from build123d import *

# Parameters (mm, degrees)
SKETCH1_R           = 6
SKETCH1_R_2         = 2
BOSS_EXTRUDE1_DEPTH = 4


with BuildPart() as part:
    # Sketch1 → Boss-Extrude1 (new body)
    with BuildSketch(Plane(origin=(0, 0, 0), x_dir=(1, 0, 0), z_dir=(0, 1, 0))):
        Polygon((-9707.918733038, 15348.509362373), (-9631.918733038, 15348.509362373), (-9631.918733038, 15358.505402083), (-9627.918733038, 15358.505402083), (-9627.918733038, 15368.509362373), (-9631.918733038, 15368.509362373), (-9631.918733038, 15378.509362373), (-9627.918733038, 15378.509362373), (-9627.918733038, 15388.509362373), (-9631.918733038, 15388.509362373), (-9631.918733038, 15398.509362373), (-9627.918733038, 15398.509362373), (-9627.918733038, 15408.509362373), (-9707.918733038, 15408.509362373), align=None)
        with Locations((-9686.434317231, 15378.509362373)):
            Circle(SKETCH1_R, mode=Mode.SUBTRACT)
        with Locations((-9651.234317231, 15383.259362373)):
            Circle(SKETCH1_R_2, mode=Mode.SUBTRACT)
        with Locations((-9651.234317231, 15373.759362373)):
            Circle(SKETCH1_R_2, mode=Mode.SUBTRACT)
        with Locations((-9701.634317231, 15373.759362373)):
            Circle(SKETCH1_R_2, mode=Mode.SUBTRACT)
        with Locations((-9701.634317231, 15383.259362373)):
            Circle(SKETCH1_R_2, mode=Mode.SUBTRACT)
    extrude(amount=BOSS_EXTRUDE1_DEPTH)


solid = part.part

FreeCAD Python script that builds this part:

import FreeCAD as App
import Part
import Sketcher
Q = App.Units.Quantity


def add_polygon(sketch, points):
    """Adds a closed chain of lines whose ends are joined by coincident constraints."""
    first, n = sketch.GeometryCount, len(points)
    for a, b in zip(points, points[1:] + points[:1]):
        sketch.addGeometry(Part.LineSegment(App.Vector(*a, 0), App.Vector(*b, 0)), False)
    for i in range(n):
        sketch.addConstraint(Sketcher.Constraint("Coincident", first + i, 2, first + (i + 1) % n, 1))

doc = App.newDocument("Part")
body = doc.addObject("PartDesign::Body", "Body")

# Sketch on XZ plane
sketch1 = body.newObject("Sketcher::SketchObject", "Sketch")
sketch1.AttachmentSupport = (doc.getObject("XZ_Plane"), [""])
sketch1.MapMode = "FlatFace"
add_polygon(sketch1, [(-9707.918733, -15348.509362), (-9631.918733, -15348.509362), (-9631.918733, -15358.505402), (-9627.918733, -15358.505402), (-9627.918733, -15368.509362), (-9631.918733, -15368.509362), (-9631.918733, -15378.509362), (-9627.918733, -15378.509362), (-9627.918733, -15388.509362), (-9631.918733, -15388.509362), (-9631.918733, -15398.509362), (-9627.918733, -15398.509362), (-9627.918733, -15408.509362), (-9707.918733, -15408.509362)])  # lines 0-13
sketch1.addGeometry(Part.Circle(App.Vector(-9701.634317, -15373.759362, 0), App.Vector(0, 0, 1), 2), False)  # 14
sketch1.addGeometry(Part.Circle(App.Vector(-9651.234317, -15373.759362, 0), App.Vector(0, 0, 1), 2), False)  # 15
sketch1.addGeometry(Part.Circle(App.Vector(-9686.434317, -15378.509362, 0), App.Vector(0, 0, 1), 6), False)  # 16
sketch1.addGeometry(Part.Circle(App.Vector(-9701.634317, -15383.259362, 0), App.Vector(0, 0, 1), 2), False)  # 17
sketch1.addGeometry(Part.Circle(App.Vector(-9651.234317, -15383.259362, 0), App.Vector(0, 0, 1), 2), False)  # 18
sketch1.addConstraint([
    Sketcher.Constraint("Horizontal", 0),
    Sketcher.Constraint("Vertical", 1),
    Sketcher.Constraint("Horizontal", 2),
    Sketcher.Constraint("Vertical", 3),
    Sketcher.Constraint("Horizontal", 4),
    Sketcher.Constraint("Vertical", 5),
    Sketcher.Constraint("Horizontal", 6),
    Sketcher.Constraint("Vertical", 7),
    Sketcher.Constraint("Horizontal", 8),
    Sketcher.Constraint("Vertical", 9),
    Sketcher.Constraint("Horizontal", 10),
    Sketcher.Constraint("Vertical", 11),
    Sketcher.Constraint("Horizontal", 12),
    Sketcher.Constraint("Vertical", 13),
    Sketcher.Constraint("Equal", 14, 15),
    Sketcher.Constraint("Equal", 15, 17),
    Sketcher.Constraint("Equal", 17, 18),
    Sketcher.Constraint("Horizontal", 14, 3, 15, 3),
    Sketcher.Constraint("Horizontal", 17, 3, 18, 3),
    Sketcher.Constraint("Horizontal", 16, 3, 5, 2),
    Sketcher.Constraint("Vertical", 14, 3, 17, 3),
    Sketcher.Constraint("Vertical", 15, 3, 18, 3),
    Sketcher.Constraint("Vertical", 1, 2, 4, 2),
    Sketcher.Constraint("Vertical", 3, 2, 6, 2),
    Sketcher.Constraint("Vertical", 5, 2, 8, 2),
    Sketcher.Constraint("Vertical", 7, 2, 10, 2),
    Sketcher.Constraint("Equal", 5, 7),
    Sketcher.Constraint("Equal", 7, 9),
    Sketcher.Constraint("Equal", 9, 11),
    Sketcher.Constraint("Diameter", 14, Q("4 mm")),
    Sketcher.Constraint("Diameter", 16, Q("12 mm")),
    Sketcher.Constraint("DistanceX", 0, 1, 0, 2, Q("76 mm")),
    Sketcher.Constraint("DistanceX", 2, 1, 2, 2, Q("4 mm")),
    Sketcher.Constraint("DistanceY", 5, 2, 5, 1, Q("10 mm")),
    Sketcher.Constraint("DistanceY", 13, 1, 13, 2, Q("60 mm")),
    Sketcher.Constraint("DistanceX", 14, 3, 15, 3, Q("50.4 mm")),
    Sketcher.Constraint("DistanceX", 14, 3, 16, 3, Q("15.2 mm")),
    Sketcher.Constraint("DistanceY", 17, 3, 14, 3, Q("9.5 mm")),
    Sketcher.Constraint("DistanceY", 16, 3, 14, 3, Q("4.75 mm")),
    Sketcher.Constraint("DistanceY", 1, 2, 1, 1, Q("9.99604 mm")),
    Sketcher.Constraint("DistanceX", 14, 3, -1, 1, Q("9701.634317 mm")),
    Sketcher.Constraint("DistanceY", 14, 3, -1, 1, Q("15373.759362 mm")),
    Sketcher.Constraint("DistanceX", 0, 2, -1, 1, Q("9631.918733 mm")),
])
pad1 = body.newObject("PartDesign::Pad", "Pad")
pad1.Profile = sketch1
pad1.Length = 4
pad1.Reversed = True

doc.recompute()
